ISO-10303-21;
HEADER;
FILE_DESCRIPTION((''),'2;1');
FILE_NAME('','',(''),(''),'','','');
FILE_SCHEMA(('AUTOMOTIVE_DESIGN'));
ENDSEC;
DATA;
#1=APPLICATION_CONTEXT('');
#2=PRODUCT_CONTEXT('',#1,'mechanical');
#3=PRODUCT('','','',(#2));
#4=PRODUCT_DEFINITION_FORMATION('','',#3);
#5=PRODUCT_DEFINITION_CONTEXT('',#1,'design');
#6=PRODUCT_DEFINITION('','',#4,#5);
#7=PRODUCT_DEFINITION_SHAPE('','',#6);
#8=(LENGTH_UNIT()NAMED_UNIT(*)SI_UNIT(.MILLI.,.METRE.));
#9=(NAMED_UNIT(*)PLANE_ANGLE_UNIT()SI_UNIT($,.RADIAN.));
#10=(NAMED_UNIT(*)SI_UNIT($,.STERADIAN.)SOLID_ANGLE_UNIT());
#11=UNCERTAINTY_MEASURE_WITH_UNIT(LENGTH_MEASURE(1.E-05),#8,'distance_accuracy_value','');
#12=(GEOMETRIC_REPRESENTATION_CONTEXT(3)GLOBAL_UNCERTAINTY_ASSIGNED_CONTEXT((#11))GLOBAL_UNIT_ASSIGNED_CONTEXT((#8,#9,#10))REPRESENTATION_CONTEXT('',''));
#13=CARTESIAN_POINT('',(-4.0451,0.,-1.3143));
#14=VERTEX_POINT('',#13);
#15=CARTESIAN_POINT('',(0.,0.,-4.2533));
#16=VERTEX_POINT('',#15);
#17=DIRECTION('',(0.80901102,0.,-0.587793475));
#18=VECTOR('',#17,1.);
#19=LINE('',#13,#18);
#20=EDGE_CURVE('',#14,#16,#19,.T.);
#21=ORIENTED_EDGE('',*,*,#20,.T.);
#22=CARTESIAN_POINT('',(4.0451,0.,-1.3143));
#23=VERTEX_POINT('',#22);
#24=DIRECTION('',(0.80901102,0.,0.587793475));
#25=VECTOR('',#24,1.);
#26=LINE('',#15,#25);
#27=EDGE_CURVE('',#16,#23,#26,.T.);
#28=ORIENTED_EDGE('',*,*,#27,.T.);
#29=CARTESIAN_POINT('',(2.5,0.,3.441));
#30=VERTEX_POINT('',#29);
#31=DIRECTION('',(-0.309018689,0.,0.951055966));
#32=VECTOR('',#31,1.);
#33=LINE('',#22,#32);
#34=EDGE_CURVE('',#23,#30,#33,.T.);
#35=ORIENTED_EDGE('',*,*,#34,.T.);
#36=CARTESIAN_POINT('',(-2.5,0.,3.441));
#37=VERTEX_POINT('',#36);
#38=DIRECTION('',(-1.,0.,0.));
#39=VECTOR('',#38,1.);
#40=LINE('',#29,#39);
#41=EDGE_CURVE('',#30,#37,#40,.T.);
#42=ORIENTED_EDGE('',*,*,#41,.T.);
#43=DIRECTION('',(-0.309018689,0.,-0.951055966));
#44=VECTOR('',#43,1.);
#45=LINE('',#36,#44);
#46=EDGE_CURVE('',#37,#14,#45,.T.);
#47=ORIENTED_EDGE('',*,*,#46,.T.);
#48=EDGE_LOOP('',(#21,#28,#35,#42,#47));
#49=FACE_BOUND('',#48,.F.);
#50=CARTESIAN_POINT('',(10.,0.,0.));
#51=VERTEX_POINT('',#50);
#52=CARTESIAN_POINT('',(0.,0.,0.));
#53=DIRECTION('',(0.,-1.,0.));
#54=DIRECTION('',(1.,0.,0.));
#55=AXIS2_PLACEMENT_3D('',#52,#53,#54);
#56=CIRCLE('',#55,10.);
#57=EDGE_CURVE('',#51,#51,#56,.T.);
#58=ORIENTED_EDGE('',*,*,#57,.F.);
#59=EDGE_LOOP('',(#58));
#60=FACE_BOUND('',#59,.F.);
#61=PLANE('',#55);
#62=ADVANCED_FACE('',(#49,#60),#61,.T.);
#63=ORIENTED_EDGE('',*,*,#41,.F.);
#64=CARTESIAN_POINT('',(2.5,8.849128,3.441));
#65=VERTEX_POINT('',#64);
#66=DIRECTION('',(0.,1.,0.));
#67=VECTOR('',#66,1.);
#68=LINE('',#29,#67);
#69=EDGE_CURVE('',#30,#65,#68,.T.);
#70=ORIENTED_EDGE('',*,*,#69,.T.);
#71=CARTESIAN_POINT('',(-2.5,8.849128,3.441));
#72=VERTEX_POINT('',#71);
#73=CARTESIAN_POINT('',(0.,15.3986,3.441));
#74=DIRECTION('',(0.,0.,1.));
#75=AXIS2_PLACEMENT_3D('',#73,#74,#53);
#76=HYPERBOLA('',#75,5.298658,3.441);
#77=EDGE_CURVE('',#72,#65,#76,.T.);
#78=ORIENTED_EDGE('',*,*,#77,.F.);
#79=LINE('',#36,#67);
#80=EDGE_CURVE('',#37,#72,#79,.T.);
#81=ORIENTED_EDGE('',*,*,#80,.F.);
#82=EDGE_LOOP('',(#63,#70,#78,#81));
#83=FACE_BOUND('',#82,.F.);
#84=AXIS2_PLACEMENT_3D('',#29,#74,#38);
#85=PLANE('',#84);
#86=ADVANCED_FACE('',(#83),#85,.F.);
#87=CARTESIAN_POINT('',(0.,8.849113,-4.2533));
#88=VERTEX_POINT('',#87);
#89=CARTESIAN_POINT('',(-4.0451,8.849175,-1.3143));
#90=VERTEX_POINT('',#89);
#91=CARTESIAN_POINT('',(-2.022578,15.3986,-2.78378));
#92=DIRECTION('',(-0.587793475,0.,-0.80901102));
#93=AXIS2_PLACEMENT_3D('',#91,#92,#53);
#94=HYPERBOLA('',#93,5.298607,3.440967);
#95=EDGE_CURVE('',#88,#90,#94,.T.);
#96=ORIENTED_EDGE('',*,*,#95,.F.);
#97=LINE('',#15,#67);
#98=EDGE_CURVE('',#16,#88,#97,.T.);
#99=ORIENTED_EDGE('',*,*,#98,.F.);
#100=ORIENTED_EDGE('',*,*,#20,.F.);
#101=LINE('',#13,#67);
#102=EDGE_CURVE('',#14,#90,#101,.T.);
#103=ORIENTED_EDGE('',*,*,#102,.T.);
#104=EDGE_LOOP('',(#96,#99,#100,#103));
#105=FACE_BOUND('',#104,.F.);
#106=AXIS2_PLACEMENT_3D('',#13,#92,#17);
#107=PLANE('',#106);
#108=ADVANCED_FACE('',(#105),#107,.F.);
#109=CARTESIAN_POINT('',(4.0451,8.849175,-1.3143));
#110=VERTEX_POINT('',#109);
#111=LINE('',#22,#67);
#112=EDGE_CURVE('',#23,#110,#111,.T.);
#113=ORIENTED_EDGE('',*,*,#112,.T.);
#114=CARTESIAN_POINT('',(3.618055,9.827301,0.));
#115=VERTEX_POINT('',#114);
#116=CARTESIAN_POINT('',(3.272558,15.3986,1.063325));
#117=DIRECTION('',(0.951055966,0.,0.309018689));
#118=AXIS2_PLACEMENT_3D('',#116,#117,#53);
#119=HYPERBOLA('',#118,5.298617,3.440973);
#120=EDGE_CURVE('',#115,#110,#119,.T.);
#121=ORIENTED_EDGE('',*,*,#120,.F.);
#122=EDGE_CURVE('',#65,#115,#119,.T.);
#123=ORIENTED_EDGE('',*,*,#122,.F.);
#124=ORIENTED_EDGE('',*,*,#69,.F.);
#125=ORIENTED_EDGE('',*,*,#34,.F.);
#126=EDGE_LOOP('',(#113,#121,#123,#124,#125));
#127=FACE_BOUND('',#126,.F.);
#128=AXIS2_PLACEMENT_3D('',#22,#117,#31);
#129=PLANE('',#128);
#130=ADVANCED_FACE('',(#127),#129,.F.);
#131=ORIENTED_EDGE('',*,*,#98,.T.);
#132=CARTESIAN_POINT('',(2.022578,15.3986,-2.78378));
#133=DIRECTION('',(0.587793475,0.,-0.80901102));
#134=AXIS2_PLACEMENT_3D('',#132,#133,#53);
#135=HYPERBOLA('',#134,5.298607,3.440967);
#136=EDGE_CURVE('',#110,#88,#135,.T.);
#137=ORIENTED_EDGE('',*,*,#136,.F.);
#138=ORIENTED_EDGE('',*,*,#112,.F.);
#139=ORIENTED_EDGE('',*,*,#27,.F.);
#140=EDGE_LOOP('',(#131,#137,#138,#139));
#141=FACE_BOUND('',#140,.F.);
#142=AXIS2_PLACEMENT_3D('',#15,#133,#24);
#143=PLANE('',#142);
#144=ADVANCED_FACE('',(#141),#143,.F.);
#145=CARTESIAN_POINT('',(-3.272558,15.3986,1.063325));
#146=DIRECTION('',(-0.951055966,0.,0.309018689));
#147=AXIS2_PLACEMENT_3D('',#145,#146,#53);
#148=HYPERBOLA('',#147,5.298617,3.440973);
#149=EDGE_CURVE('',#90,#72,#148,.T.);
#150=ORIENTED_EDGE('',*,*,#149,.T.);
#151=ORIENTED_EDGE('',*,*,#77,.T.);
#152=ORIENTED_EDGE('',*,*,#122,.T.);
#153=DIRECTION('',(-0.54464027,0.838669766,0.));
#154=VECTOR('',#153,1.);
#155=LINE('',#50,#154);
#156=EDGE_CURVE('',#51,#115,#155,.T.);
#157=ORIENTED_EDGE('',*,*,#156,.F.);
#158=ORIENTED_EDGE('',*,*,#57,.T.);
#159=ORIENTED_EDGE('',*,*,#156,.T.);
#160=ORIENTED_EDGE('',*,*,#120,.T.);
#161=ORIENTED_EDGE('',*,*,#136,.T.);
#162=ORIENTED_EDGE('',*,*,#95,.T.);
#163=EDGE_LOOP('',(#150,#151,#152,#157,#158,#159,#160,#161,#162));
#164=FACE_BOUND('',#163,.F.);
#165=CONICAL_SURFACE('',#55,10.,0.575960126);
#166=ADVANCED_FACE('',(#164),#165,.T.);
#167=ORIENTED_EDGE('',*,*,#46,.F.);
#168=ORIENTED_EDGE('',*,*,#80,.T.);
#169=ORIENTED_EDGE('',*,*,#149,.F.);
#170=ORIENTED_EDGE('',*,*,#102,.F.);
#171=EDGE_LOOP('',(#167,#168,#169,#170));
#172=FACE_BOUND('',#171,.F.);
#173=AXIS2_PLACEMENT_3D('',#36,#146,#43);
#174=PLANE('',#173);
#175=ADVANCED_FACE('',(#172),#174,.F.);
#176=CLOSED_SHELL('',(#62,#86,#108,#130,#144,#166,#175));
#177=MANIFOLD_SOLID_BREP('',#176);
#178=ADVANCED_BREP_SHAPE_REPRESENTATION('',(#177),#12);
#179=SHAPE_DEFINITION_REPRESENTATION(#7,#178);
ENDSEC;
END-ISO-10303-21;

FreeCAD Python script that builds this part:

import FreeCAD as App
import Part
import Sketcher

V = App.Vector
Q = App.Units.Quantity


def add_polygon(sketch, points):
    """Adds a closed chain of lines whose ends are joined by coincident constraints."""
    first, n = sketch.GeometryCount, len(points)
    for a, b in zip(points, points[1:] + points[:1]):
        sketch.addGeometry(Part.LineSegment(App.Vector(*a, 0), App.Vector(*b, 0)), False)
    for i in range(n):
        sketch.addConstraint(Sketcher.Constraint("Coincident", first + i, 2, first + (i + 1) % n, 1))

doc = App.newDocument("Part")
params = doc.addObject("Spreadsheet::Sheet", "Params")
for row, (alias, value) in enumerate([
    ("sketch1_width", "10 mm"),
    ("revolution_angle", "360 deg"),
    ("sketch2_width", "5 mm"),
    ("sketch2_length", "5 mm"),
    ("pocket1_length", "40 mm"),
], start=1):
    params.set(f"A{row}", alias)
    params.set(f"B{row}", "=" + value)
    params.setAlias(f"B{row}", alias)

body = doc.addObject("PartDesign::Body", "Body")

sketch1 = body.newObject("Sketcher::SketchObject", "Sketch")
sketch1.AttachmentSupport = (doc.getObject("XY_Plane"), [""])
sketch1.MapMode = "FlatFace"
add_polygon(sketch1, [(0, 15), (0, 0), (10, 0)])
sketch1.addConstraint(Sketcher.Constraint("Vertical", 0))
sketch1.addConstraint(Sketcher.Constraint("Horizontal", 1))
sketch1.addConstraint(Sketcher.Constraint("Coincident", 0, 2, -1, 1))
sketch1.addConstraint(Sketcher.Constraint("DistanceX", 1, 1, 1, 2, 10.0))
sketch1.addConstraint(Sketcher.Constraint("Angle", 2, Q("123 deg")))
sketch1.setExpression("Constraints[6]", "Params.sketch1_width")
revolution = body.newObject("PartDesign::Revolution", "Revolution")
revolution.Profile = sketch1
revolution.ReferenceAxis = (sketch1, ["V_Axis"])
revolution.setExpression("Angle", "Params.revolution_angle")

sketch2 = body.newObject("Sketcher::SketchObject", "Sketch001")
sketch2.AttachmentSupport = (doc.getObject("XZ_Plane"), [""])
sketch2.MapMode = "FlatFace"
add_polygon(sketch2, [(4, -1), (0, -4), (-4, -1), (-2, 3), (2, 3)])
sketch2.addConstraint(Sketcher.Constraint("Horizontal", 3))
sketch2.addConstraint(Sketcher.Constraint("Symmetric", 1, 2, 4, 2, -2))
sketch2.addConstraint(Sketcher.Constraint("PointOnObject", 0, 2, -2))
sketch2.addConstraint(Sketcher.Constraint("Equal", 1, 2))
sketch2.addConstraint(Sketcher.Constraint("Equal", 2, 4))
sketch2.addConstraint(Sketcher.Constraint("DistanceX", 3, 1, 3, 2, 5.0))
sketch2.addConstraint(Sketcher.Constraint("Distance", 0, 5.0))
sketch2.addConstraint(Sketcher.Constraint("Angle", 0, Q("-143.9994 deg")))
sketch2.addConstraint(Sketcher.Constraint("DistanceY", -1, 1, 2, 2, 3.441))
sketch2.setExpression("Constraints[10]", "Params.sketch2_width")
sketch2.setExpression("Constraints[11]", "Params.sketch2_length")
pocket1 = body.newObject("PartDesign::Pocket", "Pocket")
pocket1.Profile = sketch2
pocket1.setExpression("Length", "Params.pocket1_length")

doc.recompute()
